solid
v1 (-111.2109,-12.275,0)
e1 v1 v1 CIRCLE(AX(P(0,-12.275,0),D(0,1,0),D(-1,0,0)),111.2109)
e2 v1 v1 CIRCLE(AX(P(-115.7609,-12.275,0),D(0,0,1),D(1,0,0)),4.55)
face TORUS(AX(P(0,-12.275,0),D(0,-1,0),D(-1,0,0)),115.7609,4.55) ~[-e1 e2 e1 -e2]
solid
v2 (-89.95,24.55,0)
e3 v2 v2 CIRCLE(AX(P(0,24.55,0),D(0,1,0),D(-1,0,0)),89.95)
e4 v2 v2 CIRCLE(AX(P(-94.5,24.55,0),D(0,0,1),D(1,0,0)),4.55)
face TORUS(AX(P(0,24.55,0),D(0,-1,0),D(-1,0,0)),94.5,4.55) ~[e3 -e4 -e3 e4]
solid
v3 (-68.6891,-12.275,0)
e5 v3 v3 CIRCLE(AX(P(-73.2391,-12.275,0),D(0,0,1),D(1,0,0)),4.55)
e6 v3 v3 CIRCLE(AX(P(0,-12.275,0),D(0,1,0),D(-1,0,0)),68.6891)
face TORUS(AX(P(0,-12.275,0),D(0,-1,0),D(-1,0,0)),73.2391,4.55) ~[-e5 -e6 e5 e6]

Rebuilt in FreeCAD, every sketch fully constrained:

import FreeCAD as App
import Part
import Sketcher
Q = App.Units.Quantity

doc = App.newDocument("Part")
body = doc.addObject("PartDesign::Body", "Body")
body.AllowCompound = True

# Sketch on XY plane
sketch1 = doc.addObject("Sketcher::SketchObject", "Sketch")
body.addObject(sketch1)
sketch1.AttachmentSupport = (doc.XY_Plane, [""])
sketch1.MapMode = "FlatFace"
sketch1.addGeometry([
    Part.Circle(App.Vector(-94.5, 24.6, 0), App.Vector(0, 0, 1), 4.5),
    Part.Circle(App.Vector(-115.8, -12.3, 0), App.Vector(0, 0, 1), 4.5),
    Part.Circle(App.Vector(-73.2, -12.3, 0), App.Vector(0, 0, 1), 4.5),
], False)
sketch1.addConstraint([
    Sketcher.Constraint("Equal", 0, 1),
    Sketcher.Constraint("Equal", 1, 2),
    Sketcher.Constraint("Horizontal", 1, 3, 2, 3),
    Sketcher.Constraint("Diameter", 0, Q("9.1 mm")),
    Sketcher.Constraint("DistanceX", 0, 3, -1, 1, Q("94.5 mm")),
    Sketcher.Constraint("DistanceY", -1, 1, 0, 3, Q("24.55 mm")),
    Sketcher.Constraint("DistanceX", 1, 3, -1, 1, Q("115.761 mm")),
    Sketcher.Constraint("DistanceY", 1, 3, -1, 1, Q("12.275 mm")),
    Sketcher.Constraint("DistanceX", 2, 3, -1, 1, Q("73.239 mm")),
])
revolution = doc.addObject("PartDesign::Revolution", "Revolution")
body.addObject(revolution)
revolution.Profile = sketch1
revolution.ReferenceAxis = (sketch1, ["V_Axis"])
revolution.Angle = 360

doc.recompute()
